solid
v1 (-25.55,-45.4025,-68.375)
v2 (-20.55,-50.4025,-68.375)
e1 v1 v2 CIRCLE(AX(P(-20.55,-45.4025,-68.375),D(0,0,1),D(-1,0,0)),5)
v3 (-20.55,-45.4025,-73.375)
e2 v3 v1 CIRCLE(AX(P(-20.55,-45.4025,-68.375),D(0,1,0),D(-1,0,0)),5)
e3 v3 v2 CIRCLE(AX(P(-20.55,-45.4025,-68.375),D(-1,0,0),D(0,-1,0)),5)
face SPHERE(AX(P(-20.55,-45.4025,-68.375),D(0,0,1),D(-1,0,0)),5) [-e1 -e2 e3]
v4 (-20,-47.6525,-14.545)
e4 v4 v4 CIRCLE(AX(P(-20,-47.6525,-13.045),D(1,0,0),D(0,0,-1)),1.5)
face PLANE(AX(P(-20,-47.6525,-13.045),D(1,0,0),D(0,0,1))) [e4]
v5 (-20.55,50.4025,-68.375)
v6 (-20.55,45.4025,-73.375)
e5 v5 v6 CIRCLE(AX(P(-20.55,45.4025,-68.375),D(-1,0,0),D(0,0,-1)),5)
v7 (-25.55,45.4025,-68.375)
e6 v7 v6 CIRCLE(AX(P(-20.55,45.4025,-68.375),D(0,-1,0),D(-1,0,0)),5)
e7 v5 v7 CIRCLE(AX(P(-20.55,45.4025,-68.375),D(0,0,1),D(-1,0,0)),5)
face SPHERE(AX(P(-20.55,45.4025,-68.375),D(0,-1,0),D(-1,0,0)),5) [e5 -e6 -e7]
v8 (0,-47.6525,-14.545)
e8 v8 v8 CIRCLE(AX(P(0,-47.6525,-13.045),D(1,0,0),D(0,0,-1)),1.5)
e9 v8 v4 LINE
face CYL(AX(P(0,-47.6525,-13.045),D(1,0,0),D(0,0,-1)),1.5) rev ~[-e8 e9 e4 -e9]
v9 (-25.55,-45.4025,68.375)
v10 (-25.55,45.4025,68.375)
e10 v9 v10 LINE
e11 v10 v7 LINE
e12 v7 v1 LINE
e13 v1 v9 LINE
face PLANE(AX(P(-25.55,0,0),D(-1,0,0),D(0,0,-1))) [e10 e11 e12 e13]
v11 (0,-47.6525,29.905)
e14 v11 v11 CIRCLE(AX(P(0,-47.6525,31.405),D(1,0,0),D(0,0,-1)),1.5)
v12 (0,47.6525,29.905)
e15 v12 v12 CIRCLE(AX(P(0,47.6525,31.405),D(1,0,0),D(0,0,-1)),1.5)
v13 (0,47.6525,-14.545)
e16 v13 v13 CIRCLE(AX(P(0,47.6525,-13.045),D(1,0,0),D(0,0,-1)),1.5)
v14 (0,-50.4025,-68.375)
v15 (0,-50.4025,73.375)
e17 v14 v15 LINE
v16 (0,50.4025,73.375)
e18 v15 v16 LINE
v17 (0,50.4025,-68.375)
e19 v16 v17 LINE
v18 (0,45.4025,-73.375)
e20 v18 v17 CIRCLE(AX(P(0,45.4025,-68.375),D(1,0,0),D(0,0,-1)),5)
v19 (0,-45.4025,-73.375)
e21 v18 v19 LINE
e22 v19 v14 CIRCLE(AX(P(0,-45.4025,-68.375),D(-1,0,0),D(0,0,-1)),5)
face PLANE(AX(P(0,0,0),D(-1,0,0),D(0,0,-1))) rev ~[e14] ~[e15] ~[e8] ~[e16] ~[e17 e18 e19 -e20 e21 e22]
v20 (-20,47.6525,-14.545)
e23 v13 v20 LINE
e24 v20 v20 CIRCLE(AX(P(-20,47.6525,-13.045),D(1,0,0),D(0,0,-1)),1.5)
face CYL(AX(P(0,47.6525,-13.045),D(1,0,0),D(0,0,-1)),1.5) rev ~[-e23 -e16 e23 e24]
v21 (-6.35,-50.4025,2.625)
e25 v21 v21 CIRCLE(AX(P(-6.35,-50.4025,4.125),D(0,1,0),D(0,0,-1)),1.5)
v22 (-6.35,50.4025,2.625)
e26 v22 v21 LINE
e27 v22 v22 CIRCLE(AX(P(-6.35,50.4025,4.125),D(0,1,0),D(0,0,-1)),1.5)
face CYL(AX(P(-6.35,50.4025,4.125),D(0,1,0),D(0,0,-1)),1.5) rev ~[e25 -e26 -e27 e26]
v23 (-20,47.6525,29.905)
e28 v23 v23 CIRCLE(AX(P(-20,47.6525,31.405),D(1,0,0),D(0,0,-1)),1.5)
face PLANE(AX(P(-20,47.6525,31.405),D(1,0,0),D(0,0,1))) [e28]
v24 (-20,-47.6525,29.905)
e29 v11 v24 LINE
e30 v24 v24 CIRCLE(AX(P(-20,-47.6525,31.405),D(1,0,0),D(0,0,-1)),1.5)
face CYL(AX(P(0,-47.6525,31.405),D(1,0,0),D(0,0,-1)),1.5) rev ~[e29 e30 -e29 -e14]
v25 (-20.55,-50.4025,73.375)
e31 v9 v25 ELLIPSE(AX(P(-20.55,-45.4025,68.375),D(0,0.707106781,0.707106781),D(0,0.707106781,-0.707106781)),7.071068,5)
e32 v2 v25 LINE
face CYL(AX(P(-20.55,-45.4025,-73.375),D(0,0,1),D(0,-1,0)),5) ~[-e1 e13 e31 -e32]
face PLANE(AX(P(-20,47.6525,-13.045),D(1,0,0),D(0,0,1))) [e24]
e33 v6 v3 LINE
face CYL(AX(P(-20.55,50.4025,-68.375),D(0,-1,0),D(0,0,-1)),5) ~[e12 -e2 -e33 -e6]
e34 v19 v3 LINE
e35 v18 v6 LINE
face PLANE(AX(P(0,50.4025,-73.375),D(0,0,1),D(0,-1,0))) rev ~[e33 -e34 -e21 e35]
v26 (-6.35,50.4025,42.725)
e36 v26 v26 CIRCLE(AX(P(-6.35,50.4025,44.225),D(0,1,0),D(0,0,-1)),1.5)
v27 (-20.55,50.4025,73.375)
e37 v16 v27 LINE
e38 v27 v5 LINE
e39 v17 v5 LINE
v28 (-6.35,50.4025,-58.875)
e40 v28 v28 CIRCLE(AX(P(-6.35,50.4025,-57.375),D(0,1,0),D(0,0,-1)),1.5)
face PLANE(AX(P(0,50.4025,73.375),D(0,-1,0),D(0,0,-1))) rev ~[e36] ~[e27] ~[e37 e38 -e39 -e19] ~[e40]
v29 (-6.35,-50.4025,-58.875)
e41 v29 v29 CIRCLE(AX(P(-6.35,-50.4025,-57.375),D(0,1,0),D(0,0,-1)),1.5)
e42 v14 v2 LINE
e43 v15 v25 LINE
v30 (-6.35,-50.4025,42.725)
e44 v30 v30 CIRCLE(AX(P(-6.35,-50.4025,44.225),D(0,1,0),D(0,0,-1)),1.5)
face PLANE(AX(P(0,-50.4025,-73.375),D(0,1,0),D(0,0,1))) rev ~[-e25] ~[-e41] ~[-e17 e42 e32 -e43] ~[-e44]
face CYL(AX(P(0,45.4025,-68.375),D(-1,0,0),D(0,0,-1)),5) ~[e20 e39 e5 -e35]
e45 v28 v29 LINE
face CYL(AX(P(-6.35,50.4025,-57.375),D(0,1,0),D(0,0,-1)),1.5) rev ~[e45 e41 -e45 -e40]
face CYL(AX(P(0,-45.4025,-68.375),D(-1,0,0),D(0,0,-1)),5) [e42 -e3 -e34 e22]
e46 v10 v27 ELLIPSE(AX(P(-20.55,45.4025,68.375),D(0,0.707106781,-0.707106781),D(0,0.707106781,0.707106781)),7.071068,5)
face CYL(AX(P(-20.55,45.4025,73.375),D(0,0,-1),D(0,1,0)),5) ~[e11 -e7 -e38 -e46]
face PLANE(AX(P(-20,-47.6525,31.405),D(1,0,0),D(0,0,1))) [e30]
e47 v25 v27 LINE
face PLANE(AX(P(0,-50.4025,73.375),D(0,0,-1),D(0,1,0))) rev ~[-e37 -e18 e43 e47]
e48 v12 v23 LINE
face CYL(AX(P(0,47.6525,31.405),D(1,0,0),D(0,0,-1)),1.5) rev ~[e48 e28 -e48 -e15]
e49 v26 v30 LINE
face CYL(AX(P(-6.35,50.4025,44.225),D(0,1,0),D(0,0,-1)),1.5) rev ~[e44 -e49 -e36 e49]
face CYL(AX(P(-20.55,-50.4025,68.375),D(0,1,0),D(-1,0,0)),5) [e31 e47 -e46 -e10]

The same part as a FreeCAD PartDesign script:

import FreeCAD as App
import Part
import Sketcher
Q = App.Units.Quantity


def edges_at(feature, points):
    """Names of the edges that pass closest to the given points."""
    edges = feature.Shape.Edges
    near = lambda p: min(range(len(edges)), key=lambda i: edges[i].distToShape(Part.Vertex(*p))[0])
    return sorted({f"Edge{near(p) + 1}" for p in points})

doc = App.newDocument("Part")
params = doc.addObject("Spreadsheet::Sheet", "Params")
for row, (alias, value) in enumerate([
    ("sketch1_height", "146.75 mm"),
    ("pad1_length", "25.55 mm"),
    ("sketch2_diameter", "3 mm"),
    ("pocket1_length", "330 mm"),
    ("sketch3_diameter", "3 mm"),
    ("pocket2_length", "20 mm"),
    ("fillet_radius", "5 mm"),
], start=1):
    params.set(f"A{row}", alias)
    params.set(f"B{row}", "=" + value)
    params.setAlias(f"B{row}", alias)

body = doc.addObject("PartDesign::Body", "Body")

# Sketch on YZ plane
sketch1 = doc.addObject("Sketcher::SketchObject", "Sketch")
body.addObject(sketch1)
sketch1.AttachmentSupport = (doc.YZ_Plane, [""])
sketch1.MapMode = "FlatFace"
sketch1.addGeometry([
    Part.LineSegment(App.Vector(50, 73, 0), App.Vector(50, -73, 0)),
    Part.LineSegment(App.Vector(50, -73, 0), App.Vector(-50, -73, 0)),
    Part.LineSegment(App.Vector(-50, -73, 0), App.Vector(-50, 73, 0)),
    Part.LineSegment(App.Vector(-50, 73, 0), App.Vector(50, 73, 0)),
], False)
sketch1.addConstraint([
    Sketcher.Constraint("Coincident", 0, 2, 1, 1),
    Sketcher.Constraint("Coincident", 1, 2, 2, 1),
    Sketcher.Constraint("Coincident", 2, 2, 3, 1),
    Sketcher.Constraint("Coincident", 3, 2, 0, 1),
    Sketcher.Constraint("Vertical", 0),
    Sketcher.Constraint("Horizontal", 1),
    Sketcher.Constraint("Vertical", 2),
    Sketcher.Constraint("Horizontal", 3),
    Sketcher.Constraint("Symmetric", 0, 2, 2, 2, -1, 1),
    Sketcher.Constraint("DistanceY", 0, 2, 0, 1, Q("146.75 mm")),
    Sketcher.Constraint("DistanceX", 1, 2, 1, 1, Q("100.805 mm")),
])
sketch1.setExpression("Constraints[9]", "Params.sketch1_height")
pad1 = doc.addObject("PartDesign::Pad", "Pad")
body.addObject(pad1)
pad1.Profile = sketch1
pad1.setExpression("Length", "Params.pad1_length")
pad1.Reversed = True

# Sketch on XZ plane
sketch2 = doc.addObject("Sketcher::SketchObject", "Sketch001")
body.addObject(sketch2)
sketch2.AttachmentSupport = (doc.XZ_Plane, [""])
sketch2.MapMode = "FlatFace"
sketch2.AttachmentOffset = App.Placement(App.Vector(0, 0, -50.4025), App.Rotation())
sketch2.addGeometry([
    Part.Circle(App.Vector(-6.3, 44.2, 0), App.Vector(0, 0, 1), 1.5),
    Part.Circle(App.Vector(-6.3, 4.1, 0), App.Vector(0, 0, 1), 1.5),
    Part.Circle(App.Vector(-6.3, -57.4, 0), App.Vector(0, 0, 1), 1.5),
], False)
sketch2.addConstraint([
    Sketcher.Constraint("Equal", 0, 1),
    Sketcher.Constraint("Equal", 1, 2),
    Sketcher.Constraint("Vertical", 0, 3, 1, 3),
    Sketcher.Constraint("Vertical", 1, 3, 2, 3),
    Sketcher.Constraint("Diameter", 0, Q("3 mm")),
    Sketcher.Constraint("DistanceY", 1, 3, 0, 3, Q("40.1 mm")),
    Sketcher.Constraint("DistanceY", 2, 3, 1, 3, Q("61.5 mm")),
    Sketcher.Constraint("DistanceX", 0, 3, -1, 1, Q("6.35 mm")),
    Sketcher.Constraint("DistanceY", -1, 1, 0, 3, Q("44.225 mm")),
])
sketch2.setExpression("Constraints[4]", "Params.sketch2_diameter")
pocket1 = doc.addObject("PartDesign::Pocket", "Pocket")
body.addObject(pocket1)
pocket1.Profile = sketch2
pocket1.setExpression("Length", "Params.pocket1_length")
pocket1.Midplane = True

# Sketch on YZ plane
sketch3 = doc.addObject("Sketcher::SketchObject", "Sketch002")
body.addObject(sketch3)
sketch3.AttachmentSupport = (doc.YZ_Plane, [""])
sketch3.MapMode = "FlatFace"
sketch3.addGeometry([
    Part.Circle(App.Vector(47.7, 31.4, 0), App.Vector(0, 0, 1), 1.5),
    Part.Circle(App.Vector(47.7, -13, 0), App.Vector(0, 0, 1), 1.5),
    Part.Circle(App.Vector(-47.7, 31.4, 0), App.Vector(0, 0, 1), 1.5),
    Part.Circle(App.Vector(-47.7, -13, 0), App.Vector(0, 0, 1), 1.5),
], False)
sketch3.addConstraint([
    Sketcher.Constraint("Equal", 0, 1),
    Sketcher.Constraint("Equal", 1, 2),
    Sketcher.Constraint("Equal", 2, 3),
    Sketcher.Constraint("Symmetric", 0, 3, 2, 3, -2),
    Sketcher.Constraint("Symmetric", 1, 3, 3, 3, -2),
    Sketcher.Constraint("Vertical", 0, 3, 1, 3),
    Sketcher.Constraint("Diameter", 0, Q("3 mm")),
    Sketcher.Constraint("DistanceY", 1, 3, 0, 3, Q("44.45 mm")),
    Sketcher.Constraint("DistanceY", -1, 1, 0, 3, Q("31.405 mm")),
    Sketcher.Constraint("DistanceX", 2, 3, 0, 3, Q("95.305 mm")),
])
sketch3.setExpression("Constraints[6]", "Params.sketch3_diameter")
pocket2 = doc.addObject("PartDesign::Pocket", "Pocket001")
body.addObject(pocket2)
pocket2.Profile = sketch3
pocket2.setExpression("Length", "Params.pocket2_length")
doc.recompute()

fillet = doc.addObject("PartDesign::Fillet", "Fillet")
body.addObject(fillet)
fillet.Base = (pocket2, edges_at(pocket2, [
    (-25.55, 0, 73.375),
    (-25.55, -50.403, 0),
    (-25.55, 0, -73.375),
    (-25.55, 50.403, 0),
    (-12.775, 50.403, -73.375),
    (-12.775, -50.403, -73.375),
]))
fillet.setExpression("Radius", "Params.fillet_radius")

doc.recompute()
